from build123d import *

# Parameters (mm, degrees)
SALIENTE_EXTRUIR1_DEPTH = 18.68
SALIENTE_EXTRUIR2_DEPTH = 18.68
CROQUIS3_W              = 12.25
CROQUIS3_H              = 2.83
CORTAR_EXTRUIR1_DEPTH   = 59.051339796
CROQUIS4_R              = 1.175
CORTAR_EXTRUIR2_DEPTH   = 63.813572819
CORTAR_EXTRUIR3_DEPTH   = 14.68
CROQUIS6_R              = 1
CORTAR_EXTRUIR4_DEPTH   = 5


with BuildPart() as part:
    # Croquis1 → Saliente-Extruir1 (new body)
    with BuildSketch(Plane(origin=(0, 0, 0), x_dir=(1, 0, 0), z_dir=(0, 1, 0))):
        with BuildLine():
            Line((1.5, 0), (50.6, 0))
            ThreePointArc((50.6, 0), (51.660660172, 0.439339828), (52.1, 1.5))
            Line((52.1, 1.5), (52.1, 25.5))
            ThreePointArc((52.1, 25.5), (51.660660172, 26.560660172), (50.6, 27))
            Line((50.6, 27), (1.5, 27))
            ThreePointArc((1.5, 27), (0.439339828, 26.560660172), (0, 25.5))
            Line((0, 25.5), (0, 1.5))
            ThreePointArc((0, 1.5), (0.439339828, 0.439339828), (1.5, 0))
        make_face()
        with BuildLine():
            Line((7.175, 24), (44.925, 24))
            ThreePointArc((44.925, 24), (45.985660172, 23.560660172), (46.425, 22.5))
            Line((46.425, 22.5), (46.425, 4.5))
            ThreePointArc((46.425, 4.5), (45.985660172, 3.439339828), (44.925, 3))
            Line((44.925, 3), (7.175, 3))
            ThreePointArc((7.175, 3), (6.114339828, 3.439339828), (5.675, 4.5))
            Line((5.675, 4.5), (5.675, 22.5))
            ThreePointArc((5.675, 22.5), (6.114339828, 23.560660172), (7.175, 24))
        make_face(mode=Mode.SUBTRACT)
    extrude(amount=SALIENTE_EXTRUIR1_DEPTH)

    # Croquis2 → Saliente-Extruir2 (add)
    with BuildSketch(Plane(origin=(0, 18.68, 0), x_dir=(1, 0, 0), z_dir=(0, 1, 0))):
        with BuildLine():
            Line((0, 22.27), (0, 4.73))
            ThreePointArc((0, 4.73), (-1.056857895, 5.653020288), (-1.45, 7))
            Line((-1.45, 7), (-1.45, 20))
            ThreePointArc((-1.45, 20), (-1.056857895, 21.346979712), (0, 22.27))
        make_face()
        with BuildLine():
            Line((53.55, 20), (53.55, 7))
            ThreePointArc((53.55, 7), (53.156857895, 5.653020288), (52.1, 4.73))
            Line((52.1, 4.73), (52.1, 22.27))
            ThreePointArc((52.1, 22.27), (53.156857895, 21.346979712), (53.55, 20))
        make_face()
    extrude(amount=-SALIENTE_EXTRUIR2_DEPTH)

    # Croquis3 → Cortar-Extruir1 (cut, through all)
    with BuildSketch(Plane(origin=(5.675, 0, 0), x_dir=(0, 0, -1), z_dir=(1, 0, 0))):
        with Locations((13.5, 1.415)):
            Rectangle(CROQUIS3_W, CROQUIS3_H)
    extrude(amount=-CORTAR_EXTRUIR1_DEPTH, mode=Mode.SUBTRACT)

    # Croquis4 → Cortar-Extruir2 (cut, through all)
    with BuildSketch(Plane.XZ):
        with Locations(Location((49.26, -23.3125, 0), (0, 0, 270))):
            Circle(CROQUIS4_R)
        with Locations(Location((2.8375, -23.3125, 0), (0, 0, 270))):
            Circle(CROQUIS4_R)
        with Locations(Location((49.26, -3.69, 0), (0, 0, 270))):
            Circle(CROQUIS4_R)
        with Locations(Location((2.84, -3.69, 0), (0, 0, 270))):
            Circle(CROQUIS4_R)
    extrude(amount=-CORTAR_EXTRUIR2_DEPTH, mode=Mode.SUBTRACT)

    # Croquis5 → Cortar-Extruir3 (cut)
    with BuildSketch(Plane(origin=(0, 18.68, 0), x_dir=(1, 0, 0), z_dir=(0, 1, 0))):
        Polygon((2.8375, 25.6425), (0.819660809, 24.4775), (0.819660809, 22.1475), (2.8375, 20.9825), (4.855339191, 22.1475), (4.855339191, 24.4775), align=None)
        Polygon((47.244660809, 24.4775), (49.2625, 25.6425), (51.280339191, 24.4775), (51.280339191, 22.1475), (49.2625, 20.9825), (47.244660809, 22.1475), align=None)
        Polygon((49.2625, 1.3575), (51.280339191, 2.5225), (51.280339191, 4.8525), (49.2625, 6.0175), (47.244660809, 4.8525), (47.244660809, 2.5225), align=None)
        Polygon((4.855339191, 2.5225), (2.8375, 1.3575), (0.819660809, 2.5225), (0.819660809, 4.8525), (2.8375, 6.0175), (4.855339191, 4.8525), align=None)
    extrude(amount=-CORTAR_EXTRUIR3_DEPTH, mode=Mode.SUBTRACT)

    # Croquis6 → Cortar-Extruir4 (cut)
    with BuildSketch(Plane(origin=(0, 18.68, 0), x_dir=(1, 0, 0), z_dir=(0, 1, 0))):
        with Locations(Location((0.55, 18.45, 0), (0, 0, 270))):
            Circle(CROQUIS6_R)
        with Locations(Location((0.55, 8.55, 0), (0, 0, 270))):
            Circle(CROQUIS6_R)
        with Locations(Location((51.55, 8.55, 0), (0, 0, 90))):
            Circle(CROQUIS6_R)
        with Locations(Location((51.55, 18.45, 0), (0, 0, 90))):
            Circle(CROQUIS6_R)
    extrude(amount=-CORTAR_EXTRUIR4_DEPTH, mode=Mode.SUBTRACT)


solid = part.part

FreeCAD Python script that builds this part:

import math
import FreeCAD as App
import Part
import Sketcher

V = App.Vector
Q = App.Units.Quantity

doc = App.newDocument("Part")
body = doc.addObject("PartDesign::Body", "Body")

# Sketch on XZ plane
sketch1 = body.newObject("Sketcher::SketchObject", "Sketch")
sketch1.AttachmentSupport = (doc.getObject("XZ_Plane"), [""])
sketch1.MapMode = "FlatFace"
sketch1.addGeometry(Part.LineSegment(V(1.5, 0, 0), V(50.6, 0, 0)), False)
sketch1.addGeometry(Part.ArcOfCircle(Part.Circle(V(50.6, -1.5, 0), V(0, 0, 1), 1.5), math.radians(0), math.radians(90)), False)
sketch1.addGeometry(Part.LineSegment(V(52.1, -1.5, 0), V(52.1, -25.5, 0)), False)
sketch1.addGeometry(Part.ArcOfCircle(Part.Circle(V(50.6, -25.5, 0), V(0, 0, 1), 1.5), math.radians(-90), math.radians(0)), False)
sketch1.addGeometry(Part.LineSegment(V(50.6, -27, 0), V(1.5, -27, 0)), False)
sketch1.addGeometry(Part.ArcOfCircle(Part.Circle(V(1.5, -25.5, 0), V(0, 0, 1), 1.5), math.radians(180), math.radians(270)), False)
sketch1.addGeometry(Part.LineSegment(V(0, -25.5, 0), V(0, -1.5, 0)), False)
sketch1.addGeometry(Part.ArcOfCircle(Part.Circle(V(1.5, -1.5, 0), V(0, 0, 1), 1.5), math.radians(90), math.radians(180)), False)
sketch1.addGeometry(Part.ArcOfCircle(Part.Circle(V(7.2, -22.5, 0), V(0, 0, 1), 1.5), math.radians(180), math.radians(270)), False)
sketch1.addGeometry(Part.LineSegment(V(7.2, -24, 0), V(44.9, -24, 0)), False)
sketch1.addGeometry(Part.ArcOfCircle(Part.Circle(V(44.9, -22.5, 0), V(0, 0, 1), 1.5), math.radians(-90), math.radians(0)), False)
sketch1.addGeometry(Part.LineSegment(V(46.4, -22.5, 0), V(46.4, -4.5, 0)), False)
sketch1.addGeometry(Part.ArcOfCircle(Part.Circle(V(44.9, -4.5, 0), V(0, 0, 1), 1.5), math.radians(0), math.radians(90)), False)
sketch1.addGeometry(Part.LineSegment(V(44.9, -3, 0), V(7.2, -3, 0)), False)
sketch1.addGeometry(Part.ArcOfCircle(Part.Circle(V(7.2, -4.5, 0), V(0, 0, 1), 1.5), math.radians(90), math.radians(180)), False)
sketch1.addGeometry(Part.LineSegment(V(5.7, -4.5, 0), V(5.7, -22.5, 0)), False)
sketch1.addConstraint(Sketcher.Constraint("Tangent", 0, 2, 1, 2))
sketch1.addConstraint(Sketcher.Constraint("Tangent", 1, 1, 2, 1))
sketch1.addConstraint(Sketcher.Constraint("Tangent", 2, 2, 3, 2))
sketch1.addConstraint(Sketcher.Constraint("Tangent", 3, 1, 4, 1))
sketch1.addConstraint(Sketcher.Constraint("Tangent", 4, 2, 5, 2))
sketch1.addConstraint(Sketcher.Constraint("Tangent", 5, 1, 6, 1))
sketch1.addConstraint(Sketcher.Constraint("Tangent", 6, 2, 7, 2))
sketch1.addConstraint(Sketcher.Constraint("Tangent", 7, 1, 0, 1))
sketch1.addConstraint(Sketcher.Constraint("Tangent", 8, 2, 9, 1))
sketch1.addConstraint(Sketcher.Constraint("Tangent", 9, 2, 10, 1))
sketch1.addConstraint(Sketcher.Constraint("Tangent", 10, 2, 11, 1))
sketch1.addConstraint(Sketcher.Constraint("Tangent", 11, 2, 12, 1))
sketch1.addConstraint(Sketcher.Constraint("Tangent", 12, 2, 13, 1))
sketch1.addConstraint(Sketcher.Constraint("Tangent", 13, 2, 14, 1))
sketch1.addConstraint(Sketcher.Constraint("Tangent", 14, 2, 15, 1))
sketch1.addConstraint(Sketcher.Constraint("Tangent", 15, 2, 8, 1))
sketch1.addConstraint(Sketcher.Constraint("Horizontal", 0))
sketch1.addConstraint(Sketcher.Constraint("Vertical", 2))
sketch1.addConstraint(Sketcher.Constraint("Horizontal", 4))
sketch1.addConstraint(Sketcher.Constraint("Vertical", 6))
sketch1.addConstraint(Sketcher.Constraint("Horizontal", 9))
sketch1.addConstraint(Sketcher.Constraint("Vertical", 11))
sketch1.addConstraint(Sketcher.Constraint("Horizontal", 13))
sketch1.addConstraint(Sketcher.Constraint("Vertical", 15))
sketch1.addConstraint(Sketcher.Constraint("Equal", 1, 3))
sketch1.addConstraint(Sketcher.Constraint("Equal", 3, 5))
sketch1.addConstraint(Sketcher.Constraint("Equal", 5, 7))
sketch1.addConstraint(Sketcher.Constraint("Equal", 7, 8))
sketch1.addConstraint(Sketcher.Constraint("Equal", 8, 10))
sketch1.addConstraint(Sketcher.Constraint("Equal", 10, 12))
sketch1.addConstraint(Sketcher.Constraint("Equal", 12, 14))
sketch1.addConstraint(Sketcher.Constraint("PointOnObject", 0, 2, -1))
sketch1.addConstraint(Sketcher.Constraint("PointOnObject", 5, 1, -2))
sketch1.addConstraint(Sketcher.Constraint("Radius", 1, Q("1.5 mm")))
sketch1.addConstraint(Sketcher.Constraint("DistanceY", 2, 2, 2, 1, Q("24 mm")))
sketch1.addConstraint(Sketcher.Constraint("DistanceY", 11, 1, 11, 2, Q("18 mm")))
sketch1.addConstraint(Sketcher.Constraint("DistanceX", 0, 1, 0, 2, Q("49.1 mm")))
sketch1.addConstraint(Sketcher.Constraint("DistanceY", 8, 2, -1, 1, Q("24 mm")))
sketch1.addConstraint(Sketcher.Constraint("DistanceX", 9, 1, 9, 2, Q("37.75 mm")))
sketch1.addConstraint(Sketcher.Constraint("DistanceX", -1, 1, 8, 3, Q("7.175 mm")))
pad1 = body.newObject("PartDesign::Pad", "Pad")
pad1.Profile = sketch1
pad1.Length = 18.68
pad1.Reversed = True

# Sketch on XZ plane
sketch2 = body.newObject("Sketcher::SketchObject", "Sketch001")
sketch2.AttachmentSupport = (doc.getObject("XZ_Plane"), [""])
sketch2.MapMode = "FlatFace"
sketch2.AttachmentOffset = App.Placement(V(0, 0, -18.68), App.Rotation())
sketch2.addGeometry(Part.LineSegment(V(0, -4.7, 0), V(0, -22.3, 0)), False)
sketch2.addGeometry(Part.ArcOfCircle(Part.Circle(V(1, -20, 0), V(0, 0, 1), 2.5), math.radians(180), math.radians(245)), False)
sketch2.addGeometry(Part.LineSegment(V(-1.4, -20, 0), V(-1.4, -7, 0)), False)
sketch2.addGeometry(Part.ArcOfCircle(Part.Circle(V(1, -7, 0), V(0, 0, 1), 2.5), math.radians(115), math.radians(180)), False)
sketch2.addGeometry(Part.LineSegment(V(53.5, -7, 0), V(53.5, -20, 0)), False)
sketch2.addGeometry(Part.ArcOfCircle(Part.Circle(V(51.1, -20, 0), V(0, 0, 1), 2.5), math.radians(-65), math.radians(0)), False)
sketch2.addGeometry(Part.LineSegment(V(52.1, -22.3, 0), V(52.1, -4.7, 0)), False)
sketch2.addGeometry(Part.ArcOfCircle(Part.Circle(V(51.1, -7, 0), V(0, 0, 1), 2.5), math.radians(0), math.radians(65)), False)
sketch2.addConstraint(Sketcher.Constraint("Coincident", 0, 2, 1, 2))
sketch2.addConstraint(Sketcher.Constraint("Coincident", 1, 1, 2, 1))
sketch2.addConstraint(Sketcher.Constraint("Coincident", 2, 2, 3, 2))
sketch2.addConstraint(Sketcher.Constraint("Coincident", 3, 1, 0, 1))
sketch2.addConstraint(Sketcher.Constraint("Coincident", 4, 2, 5, 2))
sketch2.addConstraint(Sketcher.Constraint("Coincident", 5, 1, 6, 1))
sketch2.addConstraint(Sketcher.Constraint("Coincident", 6, 2, 7, 2))
sketch2.addConstraint(Sketcher.Constraint("Coincident", 7, 1, 4, 1))
sketch2.addConstraint(Sketcher.Constraint("Vertical", 0))
sketch2.addConstraint(Sketcher.Constraint("Vertical", 2))
sketch2.addConstraint(Sketcher.Constraint("Vertical", 4))
sketch2.addConstraint(Sketcher.Constraint("Vertical", 6))
sketch2.addConstraint(Sketcher.Constraint("Equal", 1, 3))
sketch2.addConstraint(Sketcher.Constraint("Equal", 3, 5))
sketch2.addConstraint(Sketcher.Constraint("Equal", 5, 7))
sketch2.addConstraint(Sketcher.Constraint("PointOnObject", 0, 2, -2))
sketch2.addConstraint(Sketcher.Constraint("Horizontal", 1, 3, 5, 3))
sketch2.addConstraint(Sketcher.Constraint("Horizontal", 3, 3, 7, 3))
sketch2.addConstraint(Sketcher.Constraint("Horizontal", 1, 1, 4, 2))
sketch2.addConstraint(Sketcher.Constraint("Horizontal", 0, 2, 5, 1))
sketch2.addConstraint(Sketcher.Constraint("Horizontal", 2, 2, 7, 1))
sketch2.addConstraint(Sketcher.Constraint("Radius", 1, Q("2.5 mm")))
sketch2.addConstraint(Sketcher.Constraint("DistanceY", 2, 1, 2, 2, Q("13 mm")))
sketch2.addConstraint(Sketcher.Constraint("DistanceY", 1, 1, -1, 1, Q("20 mm")))
sketch2.addConstraint(Sketcher.Constraint("DistanceX", 1, 3, 5, 3, Q("50.000001 mm")))
sketch2.addConstraint(Sketcher.Constraint("DistanceY", 0, 2, 0, 1, Q("17.54 mm")))
sketch2.addConstraint(Sketcher.Constraint("DistanceX", -1, 1, 5, 1, Q("52.1 mm")))
sketch2.addConstraint(Sketcher.Constraint("DistanceY", 0, 2, -1, 1, Q("22.27 mm")))
pad2 = body.newObject("PartDesign::Pad", "Pad001")
pad2.Profile = sketch2
pad2.Length = 18.68

# Sketch on YZ plane
sketch3 = body.newObject("Sketcher::SketchObject", "Sketch002")
sketch3.AttachmentSupport = (doc.getObject("YZ_Plane"), [""])
sketch3.MapMode = "FlatFace"
sketch3.AttachmentOffset = App.Placement(V(0, 0, 5.675), App.Rotation())
sketch3.addGeometry(Part.LineSegment(V(2.8, -7.4, 0), V(0, -7.4, 0)), False)
sketch3.addGeometry(Part.LineSegment(V(0, -7.4, 0), V(0, -19.6, 0)), False)
sketch3.addGeometry(Part.LineSegment(V(0, -19.6, 0), V(2.8, -19.6, 0)), False)
sketch3.addGeometry(Part.LineSegment(V(2.8, -19.6, 0), V(2.8, -7.4, 0)), False)
sketch3.addConstraint(Sketcher.Constraint("Coincident", 0, 2, 1, 1))
sketch3.addConstraint(Sketcher.Constraint("Coincident", 1, 2, 2, 1))
sketch3.addConstraint(Sketcher.Constraint("Coincident", 2, 2, 3, 1))
sketch3.addConstraint(Sketcher.Constraint("Coincident", 3, 2, 0, 1))
sketch3.addConstraint(Sketcher.Constraint("Horizontal", 0))
sketch3.addConstraint(Sketcher.Constraint("Vertical", 1))
sketch3.addConstraint(Sketcher.Constraint("Horizontal", 2))
sketch3.addConstraint(Sketcher.Constraint("Vertical", 3))
sketch3.addConstraint(Sketcher.Constraint("PointOnObject", 0, 2, -2))
sketch3.addConstraint(Sketcher.Constraint("DistanceX", 0, 2, 0, 1, Q("2.83 mm")))
sketch3.addConstraint(Sketcher.Constraint("DistanceY", 1, 2, 1, 1, Q("12.25 mm")))
sketch3.addConstraint(Sketcher.Constraint("DistanceY", 0, 2, -1, 1, Q("7.375 mm")))
pocket1 = body.newObject("PartDesign::Pocket", "Pocket")
pocket1.Profile = sketch3
pocket1.Type = "ThroughAll"

# Sketch on XZ plane
sketch4 = body.newObject("Sketcher::SketchObject", "Sketch003")
sketch4.AttachmentSupport = (doc.getObject("XZ_Plane"), [""])
sketch4.MapMode = "FlatFace"
sketch4.addGeometry(Part.Circle(V(49.3, -23.3, 0), V(0, 0, 1), 1.2), False)
sketch4.addGeometry(Part.Circle(V(2.8, -23.3, 0), V(0, 0, 1), 1.2), False)
sketch4.addGeometry(Part.Circle(V(49.3, -3.7, 0), V(0, 0, 1), 1.2), False)
sketch4.addGeometry(Part.Circle(V(2.8, -3.7, 0), V(0, 0, 1), 1.2), False)
sketch4.addConstraint(Sketcher.Constraint("Equal", 0, 1))
sketch4.addConstraint(Sketcher.Constraint("Equal", 1, 2))
sketch4.addConstraint(Sketcher.Constraint("Equal", 2, 3))
sketch4.addConstraint(Sketcher.Constraint("Horizontal", 0, 3, 1, 3))
sketch4.addConstraint(Sketcher.Constraint("Horizontal", 2, 3, 3, 3))
sketch4.addConstraint(Sketcher.Constraint("Vertical", 0, 3, 2, 3))
sketch4.addConstraint(Sketcher.Constraint("Diameter", 0, Q("2.35 mm")))
sketch4.addConstraint(Sketcher.Constraint("DistanceX", -1, 1, 0, 3, Q("49.26 mm")))
sketch4.addConstraint(Sketcher.Constraint("DistanceY", 2, 3, -1, 1, Q("3.69 mm")))
sketch4.addConstraint(Sketcher.Constraint("DistanceX", -1, 1, 3, 3, Q("2.84 mm")))
sketch4.addConstraint(Sketcher.Constraint("DistanceY", 0, 3, -1, 1, Q("23.3125 mm")))
sketch4.addConstraint(Sketcher.Constraint("DistanceX", -1, 1, 1, 3, Q("2.8375 mm")))
pocket2 = body.newObject("PartDesign::Pocket", "Pocket001")
pocket2.Profile = sketch4
pocket2.Type = "ThroughAll"

# Sketch on XZ plane
sketch5 = body.newObject("Sketcher::SketchObject", "Sketch004")
sketch5.AttachmentSupport = (doc.getObject("XZ_Plane"), [""])
sketch5.MapMode = "FlatFace"
sketch5.AttachmentOffset = App.Placement(V(0, 0, -18.68), App.Rotation())
sketch5.addGeometry(Part.LineSegment(V(2.8, -25.6, 0), V(0.8, -24.5, 0)), False)
sketch5.addGeometry(Part.LineSegment(V(0.8, -24.5, 0), V(0.8, -22.1, 0)), False)
sketch5.addGeometry(Part.LineSegment(V(0.8, -22.1, 0), V(2.8, -21, 0)), False)
sketch5.addGeometry(Part.LineSegment(V(2.8, -21, 0), V(4.9, -22.1, 0)), False)
sketch5.addGeometry(Part.LineSegment(V(4.9, -22.1, 0), V(4.9, -24.5, 0)), False)
sketch5.addGeometry(Part.LineSegment(V(4.9, -24.5, 0), V(2.8, -25.6, 0)), False)
sketch5.addGeometry(Part.LineSegment(V(49.3, -25.6, 0), V(47.2, -24.5, 0)), False)
sketch5.addGeometry(Part.LineSegment(V(47.2, -24.5, 0), V(47.2, -22.1, 0)), False)
sketch5.addGeometry(Part.LineSegment(V(47.2, -22.1, 0), V(49.3, -21, 0)), False)
sketch5.addGeometry(Part.LineSegment(V(49.3, -21, 0), V(51.3, -22.1, 0)), False)
sketch5.addGeometry(Part.LineSegment(V(51.3, -22.1, 0), V(51.3, -24.5, 0)), False)
sketch5.addGeometry(Part.LineSegment(V(51.3, -24.5, 0), V(49.3, -25.6, 0)), False)
sketch5.addGeometry(Part.LineSegment(V(49.3, -1.4, 0), V(51.3, -2.5, 0)), False)
sketch5.addGeometry(Part.LineSegment(V(51.3, -2.5, 0), V(51.3, -4.9, 0)), False)
sketch5.addGeometry(Part.LineSegment(V(51.3, -4.9, 0), V(49.3, -6, 0)), False)
sketch5.addGeometry(Part.LineSegment(V(49.3, -6, 0), V(47.2, -4.9, 0)), False)
sketch5.addGeometry(Part.LineSegment(V(47.2, -4.9, 0), V(47.2, -2.5, 0)), False)
sketch5.addGeometry(Part.LineSegment(V(47.2, -2.5, 0), V(49.3, -1.4, 0)), False)
sketch5.addGeometry(Part.LineSegment(V(2.8, -1.4, 0), V(4.9, -2.5, 0)), False)
sketch5.addGeometry(Part.LineSegment(V(4.9, -2.5, 0), V(4.9, -4.9, 0)), False)
sketch5.addGeometry(Part.LineSegment(V(4.9, -4.9, 0), V(2.8, -6, 0)), False)
sketch5.addGeometry(Part.LineSegment(V(2.8, -6, 0), V(0.8, -4.9, 0)), False)
sketch5.addGeometry(Part.LineSegment(V(0.8, -4.9, 0), V(0.8, -2.5, 0)), False)
sketch5.addGeometry(Part.LineSegment(V(0.8, -2.5, 0), V(2.8, -1.4, 0)), False)
sketch5.addConstraint(Sketcher.Constraint("Coincident", 0, 2, 1, 1))
sketch5.addConstraint(Sketcher.Constraint("Coincident", 1, 2, 2, 1))
sketch5.addConstraint(Sketcher.Constraint("Coincident", 2, 2, 3, 1))
sketch5.addConstraint(Sketcher.Constraint("Coincident", 3, 2, 4, 1))
sketch5.addConstraint(Sketcher.Constraint("Coincident", 4, 2, 5, 1))
sketch5.addConstraint(Sketcher.Constraint("Coincident", 5, 2, 0, 1))
sketch5.addConstraint(Sketcher.Constraint("Coincident", 6, 2, 7, 1))
sketch5.addConstraint(Sketcher.Constraint("Coincident", 7, 2, 8, 1))
sketch5.addConstraint(Sketcher.Constraint("Coincident", 8, 2, 9, 1))
sketch5.addConstraint(Sketcher.Constraint("Coincident", 9, 2, 10, 1))
sketch5.addConstraint(Sketcher.Constraint("Coincident", 10, 2, 11, 1))
sketch5.addConstraint(Sketcher.Constraint("Coincident", 11, 2, 6, 1))
sketch5.addConstraint(Sketcher.Constraint("Coincident", 12, 2, 13, 1))
sketch5.addConstraint(Sketcher.Constraint("Coincident", 13, 2, 14, 1))
sketch5.addConstraint(Sketcher.Constraint("Coincident", 14, 2, 15, 1))
sketch5.addConstraint(Sketcher.Constraint("Coincident", 15, 2, 16, 1))
sketch5.addConstraint(Sketcher.Constraint("Coincident", 16, 2, 17, 1))
sketch5.addConstraint(Sketcher.Constraint("Coincident", 17, 2, 12, 1))
sketch5.addConstraint(Sketcher.Constraint("Coincident", 18, 2, 19, 1))
sketch5.addConstraint(Sketcher.Constraint("Coincident", 19, 2, 20, 1))
sketch5.addConstraint(Sketcher.Constraint("Coincident", 20, 2, 21, 1))
sketch5.addConstraint(Sketcher.Constraint("Coincident", 21, 2, 22, 1))
sketch5.addConstraint(Sketcher.Constraint("Coincident", 22, 2, 23, 1))
sketch5.addConstraint(Sketcher.Constraint("Coincident", 23, 2, 18, 1))
sketch5.addConstraint(Sketcher.Constraint("Vertical", 1))
sketch5.addConstraint(Sketcher.Constraint("Vertical", 4))
sketch5.addConstraint(Sketcher.Constraint("Vertical", 7))
sketch5.addConstraint(Sketcher.Constraint("Vertical", 10))
sketch5.addConstraint(Sketcher.Constraint("Vertical", 13))
sketch5.addConstraint(Sketcher.Constraint("Vertical", 16))
sketch5.addConstraint(Sketcher.Constraint("Vertical", 19))
sketch5.addConstraint(Sketcher.Constraint("Vertical", 22))
sketch5.addConstraint(Sketcher.Constraint("Parallel", 0, 3))
sketch5.addConstraint(Sketcher.Constraint("Parallel", 2, 5))
sketch5.addConstraint(Sketcher.Constraint("Parallel", 3, 6))
sketch5.addConstraint(Sketcher.Constraint("Parallel", 5, 8))
sketch5.addConstraint(Sketcher.Constraint("Parallel", 6, 9))
sketch5.addConstraint(Sketcher.Constraint("Parallel", 8, 11))
sketch5.addConstraint(Sketcher.Constraint("Parallel", 9, 12))
sketch5.addConstraint(Sketcher.Constraint("Parallel", 11, 14))
sketch5.addConstraint(Sketcher.Constraint("Parallel", 12, 15))
sketch5.addConstraint(Sketcher.Constraint("Parallel", 14, 17))
sketch5.addConstraint(Sketcher.Constraint("Parallel", 15, 18))
sketch5.addConstraint(Sketcher.Constraint("Parallel", 17, 20))
sketch5.addConstraint(Sketcher.Constraint("Parallel", 18, 21))
sketch5.addConstraint(Sketcher.Constraint("Parallel", 20, 23))
sketch5.addConstraint(Sketcher.Constraint("Horizontal", 1, 2, 3, 2))
sketch5.addConstraint(Sketcher.Constraint("Horizontal", 0, 2, 4, 2))
sketch5.addConstraint(Sketcher.Constraint("Horizontal", 4, 2, 6, 2))
sketch5.addConstraint(Sketcher.Constraint("Horizontal", 3, 2, 7, 2))
sketch5.addConstraint(Sketcher.Constraint("Horizontal", 2, 2, 8, 2))
sketch5.addConstraint(Sketcher.Constraint("Horizontal", 7, 2, 9, 2))
sketch5.addConstraint(Sketcher.Constraint("Horizontal", 6, 2, 10, 2))
sketch5.addConstraint(Sketcher.Constraint("Horizontal", 13, 2, 15, 2))
sketch5.addConstraint(Sketcher.Constraint("Horizontal", 12, 2, 16, 2))
sketch5.addConstraint(Sketcher.Constraint("Horizontal", 16, 2, 18, 2))
sketch5.addConstraint(Sketcher.Constraint("Horizontal", 15, 2, 19, 2))
sketch5.addConstraint(Sketcher.Constraint("Horizontal", 14, 2, 20, 2))
sketch5.addConstraint(Sketcher.Constraint("Horizontal", 19, 2, 21, 2))
sketch5.addConstraint(Sketcher.Constraint("Horizontal", 18, 2, 22, 2))
sketch5.addConstraint(Sketcher.Constraint("Vertical", 2, 2, 5, 2))
sketch5.addConstraint(Sketcher.Constraint("Vertical", 10, 2, 12, 2))
sketch5.addConstraint(Sketcher.Constraint("Vertical", 11, 2, 14, 2))
sketch5.addConstraint(Sketcher.Constraint("Vertical", 4, 2, 18, 2))
sketch5.addConstraint(Sketcher.Constraint("Equal", 10, 13))
sketch5.addConstraint(Sketcher.Constraint("Angle", 0, Q("150 deg")))
sketch5.addConstraint(Sketcher.Constraint("DistanceY", 1, 1, 1, 2, Q("2.33 mm")))
sketch5.addConstraint(Sketcher.Constraint("Distance", 0, Q("2.33 mm")))
sketch5.addConstraint(Sketcher.Constraint("DistanceY", 8, 2, 12, 2, Q("18.46 mm")))
sketch5.addConstraint(Sketcher.Constraint("DistanceX", 0, 2, 6, 2, Q("46.425 mm")))
sketch5.addConstraint(Sketcher.Constraint("DistanceY", 0, 2, -1, 1, Q("24.4775 mm")))
sketch5.addConstraint(Sketcher.Constraint("DistanceX", -1, 1, 2, 2, Q("2.8375 mm")))
pocket3 = body.newObject("PartDesign::Pocket", "Pocket002")
pocket3.Profile = sketch5
pocket3.Length = 14.68
pocket3.Reversed = True

# Sketch on XZ plane
sketch6 = body.newObject("Sketcher::SketchObject", "Sketch005")
sketch6.AttachmentSupport = (doc.getObject("XZ_Plane"), [""])
sketch6.MapMode = "FlatFace"
sketch6.AttachmentOffset = App.Placement(V(0, 0, -18.68), App.Rotation())
sketch6.addGeometry(Part.Circle(V(0.6, -18.4, 0), V(0, 0, 1), 1), False)
sketch6.addGeometry(Part.Circle(V(0.6, -8.6, 0), V(0, 0, 1), 1), False)
sketch6.addGeometry(Part.Circle(V(51.5, -8.6, 0), V(0, 0, 1), 1), False)
sketch6.addGeometry(Part.Circle(V(51.5, -18.4, 0), V(0, 0, 1), 1), False)
sketch6.addConstraint(Sketcher.Constraint("Equal", 0, 1))
sketch6.addConstraint(Sketcher.Constraint("Equal", 1, 2))
sketch6.addConstraint(Sketcher.Constraint("Equal", 2, 3))
sketch6.addConstraint(Sketcher.Constraint("Horizontal", 1, 3, 2, 3))
sketch6.addConstraint(Sketcher.Constraint("Horizontal", 0, 3, 3, 3))
sketch6.addConstraint(Sketcher.Constraint("Vertical", 0, 3, 1, 3))
sketch6.addConstraint(Sketcher.Constraint("Vertical", 2, 3, 3, 3))
sketch6.addConstraint(Sketcher.Constraint("Diameter", 0, Q("2 mm")))
sketch6.addConstraint(Sketcher.Constraint("DistanceX", 1, 3, 2, 3, Q("51 mm")))
sketch6.addConstraint(Sketcher.Constraint("DistanceY", 0, 3, 1, 3, Q("9.9 mm")))
sketch6.addConstraint(Sketcher.Constraint("DistanceX", -1, 1, 0, 3, Q("0.55 mm")))
sketch6.addConstraint(Sketcher.Constraint("DistanceY", 0, 3, -1, 1, Q("18.45 mm")))
pocket4 = body.newObject("PartDesign::Pocket", "Pocket003")
pocket4.Profile = sketch6
pocket4.Length = 5
pocket4.Reversed = True

doc.recompute()
